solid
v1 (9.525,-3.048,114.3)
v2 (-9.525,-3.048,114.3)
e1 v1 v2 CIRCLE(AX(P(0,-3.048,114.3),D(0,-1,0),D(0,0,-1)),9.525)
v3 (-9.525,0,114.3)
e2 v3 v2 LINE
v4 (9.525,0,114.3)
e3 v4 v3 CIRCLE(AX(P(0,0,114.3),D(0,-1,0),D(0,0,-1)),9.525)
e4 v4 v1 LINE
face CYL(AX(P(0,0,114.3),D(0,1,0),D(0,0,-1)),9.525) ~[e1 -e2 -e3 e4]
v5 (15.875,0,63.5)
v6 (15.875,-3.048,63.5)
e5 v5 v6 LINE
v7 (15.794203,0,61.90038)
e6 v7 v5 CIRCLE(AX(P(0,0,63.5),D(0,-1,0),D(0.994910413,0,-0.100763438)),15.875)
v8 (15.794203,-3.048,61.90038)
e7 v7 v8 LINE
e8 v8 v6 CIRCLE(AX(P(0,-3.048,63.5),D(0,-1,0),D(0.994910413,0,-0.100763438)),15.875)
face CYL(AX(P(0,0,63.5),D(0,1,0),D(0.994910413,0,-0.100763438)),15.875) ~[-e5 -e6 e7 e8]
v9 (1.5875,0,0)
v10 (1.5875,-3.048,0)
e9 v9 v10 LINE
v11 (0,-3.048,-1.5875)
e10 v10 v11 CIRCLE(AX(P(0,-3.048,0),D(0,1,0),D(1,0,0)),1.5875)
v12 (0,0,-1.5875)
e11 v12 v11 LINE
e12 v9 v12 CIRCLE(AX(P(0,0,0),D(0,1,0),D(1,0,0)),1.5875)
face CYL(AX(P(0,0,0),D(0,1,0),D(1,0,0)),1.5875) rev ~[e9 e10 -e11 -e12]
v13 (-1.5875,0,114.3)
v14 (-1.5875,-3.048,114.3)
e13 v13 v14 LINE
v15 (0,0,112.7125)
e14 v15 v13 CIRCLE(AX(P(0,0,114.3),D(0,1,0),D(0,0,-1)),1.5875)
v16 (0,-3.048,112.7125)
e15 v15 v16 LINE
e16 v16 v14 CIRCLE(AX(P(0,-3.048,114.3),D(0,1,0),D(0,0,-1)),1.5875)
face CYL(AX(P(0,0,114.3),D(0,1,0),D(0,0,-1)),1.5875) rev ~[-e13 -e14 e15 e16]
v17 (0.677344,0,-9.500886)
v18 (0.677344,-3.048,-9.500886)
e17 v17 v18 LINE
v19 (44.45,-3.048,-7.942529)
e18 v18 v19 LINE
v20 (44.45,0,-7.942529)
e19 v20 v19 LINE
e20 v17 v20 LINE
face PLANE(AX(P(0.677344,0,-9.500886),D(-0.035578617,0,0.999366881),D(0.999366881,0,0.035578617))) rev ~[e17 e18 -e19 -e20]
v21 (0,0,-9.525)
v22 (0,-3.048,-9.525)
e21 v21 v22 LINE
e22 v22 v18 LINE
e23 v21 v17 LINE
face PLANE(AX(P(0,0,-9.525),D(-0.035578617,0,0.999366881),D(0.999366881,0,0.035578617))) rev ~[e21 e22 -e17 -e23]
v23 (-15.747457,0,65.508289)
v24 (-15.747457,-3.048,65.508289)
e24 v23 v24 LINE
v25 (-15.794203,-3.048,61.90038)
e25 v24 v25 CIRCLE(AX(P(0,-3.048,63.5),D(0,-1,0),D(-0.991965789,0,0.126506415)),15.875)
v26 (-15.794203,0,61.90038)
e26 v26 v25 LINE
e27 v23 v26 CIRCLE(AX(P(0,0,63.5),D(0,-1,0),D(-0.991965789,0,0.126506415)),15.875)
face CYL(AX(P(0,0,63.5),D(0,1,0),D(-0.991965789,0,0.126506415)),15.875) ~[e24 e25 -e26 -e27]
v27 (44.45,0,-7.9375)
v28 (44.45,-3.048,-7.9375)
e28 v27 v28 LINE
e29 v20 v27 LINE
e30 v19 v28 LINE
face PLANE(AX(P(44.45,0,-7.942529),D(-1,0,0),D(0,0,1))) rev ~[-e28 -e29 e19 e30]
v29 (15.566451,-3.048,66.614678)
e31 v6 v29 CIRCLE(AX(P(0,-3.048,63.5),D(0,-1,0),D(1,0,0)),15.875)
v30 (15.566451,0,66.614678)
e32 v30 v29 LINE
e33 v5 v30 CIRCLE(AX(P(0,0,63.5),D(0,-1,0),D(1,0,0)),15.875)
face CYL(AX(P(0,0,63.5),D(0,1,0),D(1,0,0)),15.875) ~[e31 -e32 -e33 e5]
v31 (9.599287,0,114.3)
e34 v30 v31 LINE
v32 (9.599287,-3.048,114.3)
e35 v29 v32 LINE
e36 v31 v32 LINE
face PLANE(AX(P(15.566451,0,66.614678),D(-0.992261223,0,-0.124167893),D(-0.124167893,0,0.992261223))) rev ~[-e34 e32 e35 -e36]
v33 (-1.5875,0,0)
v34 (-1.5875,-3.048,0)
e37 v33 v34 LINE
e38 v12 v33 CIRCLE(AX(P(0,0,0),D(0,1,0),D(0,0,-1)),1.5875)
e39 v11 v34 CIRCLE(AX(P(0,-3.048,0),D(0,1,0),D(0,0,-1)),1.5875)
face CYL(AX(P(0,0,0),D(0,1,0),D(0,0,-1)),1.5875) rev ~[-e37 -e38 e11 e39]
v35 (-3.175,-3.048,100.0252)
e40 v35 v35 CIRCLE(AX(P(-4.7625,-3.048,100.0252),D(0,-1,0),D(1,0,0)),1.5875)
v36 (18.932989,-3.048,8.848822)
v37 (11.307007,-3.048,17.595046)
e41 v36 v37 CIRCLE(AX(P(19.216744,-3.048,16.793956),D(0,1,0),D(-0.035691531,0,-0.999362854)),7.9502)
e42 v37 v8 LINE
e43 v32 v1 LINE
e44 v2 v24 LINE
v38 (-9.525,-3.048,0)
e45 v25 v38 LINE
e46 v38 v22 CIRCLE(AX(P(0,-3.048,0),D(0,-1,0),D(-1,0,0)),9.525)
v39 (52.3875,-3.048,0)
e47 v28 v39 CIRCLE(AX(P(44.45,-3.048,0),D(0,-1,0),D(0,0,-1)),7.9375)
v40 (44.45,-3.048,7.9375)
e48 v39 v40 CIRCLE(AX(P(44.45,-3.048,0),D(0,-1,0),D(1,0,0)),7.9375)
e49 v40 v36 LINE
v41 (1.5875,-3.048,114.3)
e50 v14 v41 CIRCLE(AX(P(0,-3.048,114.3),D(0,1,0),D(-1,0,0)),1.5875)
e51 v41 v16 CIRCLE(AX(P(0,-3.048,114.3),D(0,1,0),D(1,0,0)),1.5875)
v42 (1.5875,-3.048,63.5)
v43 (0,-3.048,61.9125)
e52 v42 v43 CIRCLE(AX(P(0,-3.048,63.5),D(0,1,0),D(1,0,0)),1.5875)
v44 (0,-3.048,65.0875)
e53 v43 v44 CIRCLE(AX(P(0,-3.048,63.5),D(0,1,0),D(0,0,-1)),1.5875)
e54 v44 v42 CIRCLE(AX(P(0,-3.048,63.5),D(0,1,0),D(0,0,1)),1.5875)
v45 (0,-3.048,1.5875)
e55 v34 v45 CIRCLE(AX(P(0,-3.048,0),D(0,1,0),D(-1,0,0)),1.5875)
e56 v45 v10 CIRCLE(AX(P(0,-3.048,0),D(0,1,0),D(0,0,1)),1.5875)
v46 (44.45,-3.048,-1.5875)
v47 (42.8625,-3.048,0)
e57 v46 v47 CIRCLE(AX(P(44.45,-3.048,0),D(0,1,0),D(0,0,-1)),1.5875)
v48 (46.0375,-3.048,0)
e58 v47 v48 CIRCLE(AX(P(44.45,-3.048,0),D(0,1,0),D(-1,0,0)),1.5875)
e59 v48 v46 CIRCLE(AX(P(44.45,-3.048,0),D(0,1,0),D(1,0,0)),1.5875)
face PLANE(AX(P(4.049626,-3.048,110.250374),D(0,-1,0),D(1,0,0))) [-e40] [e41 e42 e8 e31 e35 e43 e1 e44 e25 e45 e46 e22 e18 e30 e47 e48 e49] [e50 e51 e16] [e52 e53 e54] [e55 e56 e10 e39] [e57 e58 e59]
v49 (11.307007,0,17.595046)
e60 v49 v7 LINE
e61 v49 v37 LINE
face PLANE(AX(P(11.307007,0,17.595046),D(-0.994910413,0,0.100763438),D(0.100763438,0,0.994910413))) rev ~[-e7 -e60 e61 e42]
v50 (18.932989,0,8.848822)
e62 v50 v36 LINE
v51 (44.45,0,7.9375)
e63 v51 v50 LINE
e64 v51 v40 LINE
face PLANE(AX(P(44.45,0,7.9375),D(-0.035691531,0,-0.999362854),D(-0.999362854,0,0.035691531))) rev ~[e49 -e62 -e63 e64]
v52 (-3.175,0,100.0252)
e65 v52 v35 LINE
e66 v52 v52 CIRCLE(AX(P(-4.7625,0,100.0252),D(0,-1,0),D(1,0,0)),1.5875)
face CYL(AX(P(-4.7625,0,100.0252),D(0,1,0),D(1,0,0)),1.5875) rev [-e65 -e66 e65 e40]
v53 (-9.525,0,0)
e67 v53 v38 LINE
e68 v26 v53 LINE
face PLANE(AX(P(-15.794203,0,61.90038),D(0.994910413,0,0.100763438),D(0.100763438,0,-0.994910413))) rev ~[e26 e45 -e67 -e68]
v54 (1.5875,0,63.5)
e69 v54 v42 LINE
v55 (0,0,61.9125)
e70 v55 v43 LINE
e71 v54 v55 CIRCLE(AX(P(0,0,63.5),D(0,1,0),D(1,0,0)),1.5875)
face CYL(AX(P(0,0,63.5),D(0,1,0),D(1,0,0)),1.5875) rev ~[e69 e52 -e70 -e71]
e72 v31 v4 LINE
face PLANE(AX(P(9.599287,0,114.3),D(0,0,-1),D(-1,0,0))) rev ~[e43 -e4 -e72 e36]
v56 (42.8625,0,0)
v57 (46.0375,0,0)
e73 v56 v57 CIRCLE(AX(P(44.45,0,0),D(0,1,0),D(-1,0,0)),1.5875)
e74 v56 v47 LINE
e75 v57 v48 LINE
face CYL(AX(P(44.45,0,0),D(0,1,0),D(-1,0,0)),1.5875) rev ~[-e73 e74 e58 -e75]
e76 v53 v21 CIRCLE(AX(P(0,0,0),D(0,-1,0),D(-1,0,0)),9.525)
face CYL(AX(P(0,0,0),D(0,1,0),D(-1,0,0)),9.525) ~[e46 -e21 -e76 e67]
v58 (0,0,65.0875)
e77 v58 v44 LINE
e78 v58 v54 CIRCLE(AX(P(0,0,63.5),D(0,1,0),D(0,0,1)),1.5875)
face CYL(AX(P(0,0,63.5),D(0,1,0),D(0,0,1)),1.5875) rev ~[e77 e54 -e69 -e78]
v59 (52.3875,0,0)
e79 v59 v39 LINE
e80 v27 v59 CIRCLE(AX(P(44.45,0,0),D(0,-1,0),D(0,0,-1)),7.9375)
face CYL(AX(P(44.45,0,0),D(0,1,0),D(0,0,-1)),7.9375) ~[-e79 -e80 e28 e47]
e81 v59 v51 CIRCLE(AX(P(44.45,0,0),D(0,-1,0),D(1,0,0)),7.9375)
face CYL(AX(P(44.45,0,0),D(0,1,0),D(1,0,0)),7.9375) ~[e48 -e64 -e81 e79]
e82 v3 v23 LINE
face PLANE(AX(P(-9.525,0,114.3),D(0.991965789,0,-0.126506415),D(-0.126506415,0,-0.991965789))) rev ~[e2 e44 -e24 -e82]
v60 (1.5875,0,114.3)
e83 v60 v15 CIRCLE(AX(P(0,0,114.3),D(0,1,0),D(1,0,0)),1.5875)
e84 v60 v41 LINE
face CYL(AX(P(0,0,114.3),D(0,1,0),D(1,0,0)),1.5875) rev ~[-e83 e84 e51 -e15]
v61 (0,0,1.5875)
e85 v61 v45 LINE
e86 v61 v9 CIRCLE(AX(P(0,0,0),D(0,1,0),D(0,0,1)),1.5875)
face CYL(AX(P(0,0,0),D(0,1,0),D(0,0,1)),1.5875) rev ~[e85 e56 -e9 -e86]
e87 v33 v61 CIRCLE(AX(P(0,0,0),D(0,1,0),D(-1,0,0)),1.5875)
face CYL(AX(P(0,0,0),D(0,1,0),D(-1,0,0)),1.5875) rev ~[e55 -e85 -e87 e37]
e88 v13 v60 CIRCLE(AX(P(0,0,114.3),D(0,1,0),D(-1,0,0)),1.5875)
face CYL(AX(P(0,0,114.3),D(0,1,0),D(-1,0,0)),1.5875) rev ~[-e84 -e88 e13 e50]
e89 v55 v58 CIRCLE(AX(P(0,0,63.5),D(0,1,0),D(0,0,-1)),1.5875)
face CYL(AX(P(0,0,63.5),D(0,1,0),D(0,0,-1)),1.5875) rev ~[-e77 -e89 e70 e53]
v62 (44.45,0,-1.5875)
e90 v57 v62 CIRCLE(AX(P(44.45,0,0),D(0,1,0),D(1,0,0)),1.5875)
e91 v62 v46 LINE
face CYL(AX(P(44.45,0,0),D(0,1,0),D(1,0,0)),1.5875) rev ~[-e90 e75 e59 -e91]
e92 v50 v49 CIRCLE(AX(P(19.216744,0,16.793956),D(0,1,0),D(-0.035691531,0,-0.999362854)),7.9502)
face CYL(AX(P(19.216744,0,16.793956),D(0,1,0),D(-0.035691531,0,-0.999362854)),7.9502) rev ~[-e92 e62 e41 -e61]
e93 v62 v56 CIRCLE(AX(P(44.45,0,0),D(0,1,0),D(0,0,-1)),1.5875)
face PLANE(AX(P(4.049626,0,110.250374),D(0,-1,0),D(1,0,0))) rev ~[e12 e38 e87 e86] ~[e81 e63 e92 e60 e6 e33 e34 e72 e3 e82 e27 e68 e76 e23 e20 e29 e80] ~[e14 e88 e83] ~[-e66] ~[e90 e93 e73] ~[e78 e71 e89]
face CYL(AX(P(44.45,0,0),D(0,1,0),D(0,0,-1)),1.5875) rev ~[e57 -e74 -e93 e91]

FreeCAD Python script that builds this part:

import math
import FreeCAD as App
import Part
import Sketcher

V = App.Vector
Q = App.Units.Quantity

doc = App.newDocument("Part")
body = doc.addObject("PartDesign::Body", "Body")

sketch1 = doc.addObject("Sketcher::SketchObject", "Sketch")
body.addObject(sketch1)
sketch1.AttachmentSupport = (doc.XZ_Plane, [""])
sketch1.MapMode = "FlatFace"
sketch1.addGeometry(Part.ArcOfCircle(Part.Circle(V(0, 114.3, 0), V(0, 0, 1), 9.525), math.radians(0), math.radians(180)), False)
sketch1.addGeometry(Part.LineSegment(V(-9.525, 114.3, 0), V(-15.747457, 65.508289, 0)), False)
sketch1.addGeometry(Part.ArcOfCircle(Part.Circle(V(0, 63.5, 0), V(0, 0, 1), 15.875), math.radians(172.732242), math.radians(185.783134)), False)
sketch1.addGeometry(Part.LineSegment(V(-15.794203, 61.90038, 0), V(-9.525, 0, 0)), False)
sketch1.addGeometry(Part.ArcOfCircle(Part.Circle(V(0, 0, 0), V(0, 0, 1), 9.525), math.radians(180), math.radians(270)), False)
sketch1.addGeometry(Part.LineSegment(V(0, -9.525, 0), V(0.677344, -9.500886, 0)), False)
sketch1.addGeometry(Part.LineSegment(V(0.677344, -9.500886, 0), V(44.45, -7.942529, 0)), False)
sketch1.addGeometry(Part.LineSegment(V(44.45, -7.942529, 0), V(44.45, -7.9375, 0)), False)
sketch1.addGeometry(Part.ArcOfCircle(Part.Circle(V(44.45, 0, 0), V(0, 0, 1), 7.9375), math.radians(-90), math.radians(0)), False)
sketch1.addGeometry(Part.ArcOfCircle(Part.Circle(V(44.45, 0, 0), V(0, 0, 1), 7.9375), math.radians(0), math.radians(90)), False)
sketch1.addGeometry(Part.LineSegment(V(44.45, 7.9375, 0), V(18.932989, 8.848822, 0)), False)
sketch1.addGeometry(Part.ArcOfCircle(Part.Circle(V(19.216744, 16.793956, 0), V(0, 0, 1), 7.9502), math.radians(174.216866), math.radians(267.954592)), False)
sketch1.addGeometry(Part.LineSegment(V(11.307007, 17.595046, 0), V(15.794203, 61.90038, 0)), False)
sketch1.addGeometry(Part.ArcOfCircle(Part.Circle(V(0, 63.5, 0), V(0, 0, 1), 15.875), math.radians(-5.783134), math.radians(0)), False)
sketch1.addGeometry(Part.ArcOfCircle(Part.Circle(V(0, 63.5, 0), V(0, 0, 1), 15.875), math.radians(0), math.radians(11.314846)), False)
sketch1.addGeometry(Part.LineSegment(V(15.566451, 66.614678, 0), V(9.599287, 114.3, 0)), False)
sketch1.addGeometry(Part.LineSegment(V(9.599287, 114.3, 0), V(9.525, 114.3, 0)), False)
sketch1.addGeometry(Part.ArcOfCircle(Part.Circle(V(44.45, 0, 0), V(0, 0, 1), 1.5875), math.radians(180), math.radians(270)), False)
sketch1.addGeometry(Part.ArcOfCircle(Part.Circle(V(44.45, 0, 0), V(0, 0, 1), 1.5875), math.radians(0), math.radians(180)), False)
sketch1.addGeometry(Part.ArcOfCircle(Part.Circle(V(44.45, 0, 0), V(0, 0, 1), 1.5875), math.radians(-90), math.radians(0)), False)
sketch1.addGeometry(Part.ArcOfCircle(Part.Circle(V(0, 0, 0), V(0, 0, 1), 1.5875), math.radians(180), math.radians(270)), False)
sketch1.addGeometry(Part.ArcOfCircle(Part.Circle(V(0, 0, 0), V(0, 0, 1), 1.5875), math.radians(90), math.radians(180)), False)
sketch1.addGeometry(Part.ArcOfCircle(Part.Circle(V(0, 0, 0), V(0, 0, 1), 1.5875), math.radians(0), math.radians(90)), False)
sketch1.addGeometry(Part.ArcOfCircle(Part.Circle(V(0, 0, 0), V(0, 0, 1), 1.5875), math.radians(-90), math.radians(0)), False)
sketch1.addGeometry(Part.ArcOfCircle(Part.Circle(V(0, 63.5, 0), V(0, 0, 1), 1.5875), math.radians(90), math.radians(270)), False)
sketch1.addGeometry(Part.ArcOfCircle(Part.Circle(V(0, 63.5, 0), V(0, 0, 1), 1.5875), math.radians(0), math.radians(90)), False)
sketch1.addGeometry(Part.ArcOfCircle(Part.Circle(V(0, 63.5, 0), V(0, 0, 1), 1.5875), math.radians(-90), math.radians(0)), False)
sketch1.addGeometry(Part.Circle(V(-4.7625, 100.0252, 0), V(0, 0, 1), 1.5875), False)
sketch1.addGeometry(Part.ArcOfCircle(Part.Circle(V(0, 114.3, 0), V(0, 0, 1), 1.5875), math.radians(-90), math.radians(0)), False)
sketch1.addGeometry(Part.ArcOfCircle(Part.Circle(V(0, 114.3, 0), V(0, 0, 1), 1.5875), math.radians(180), math.radians(270)), False)
sketch1.addGeometry(Part.ArcOfCircle(Part.Circle(V(0, 114.3, 0), V(0, 0, 1), 1.5875), math.radians(0), math.radians(180)), False)
sketch1.addConstraint(Sketcher.Constraint("Coincident", 0, 2, 1, 1))
sketch1.addConstraint(Sketcher.Constraint("Tangent", 1, 2, 2, 1))
sketch1.addConstraint(Sketcher.Constraint("Tangent", 2, 2, 3, 1))
sketch1.addConstraint(Sketcher.Constraint("Coincident", 3, 2, 4, 1))
sketch1.addConstraint(Sketcher.Constraint("Coincident", 4, 2, 5, 1))
sketch1.addConstraint(Sketcher.Constraint("Coincident", 5, 2, 6, 1))
sketch1.addConstraint(Sketcher.Constraint("Coincident", 6, 2, 7, 1))
sketch1.addConstraint(Sketcher.Constraint("Coincident", 7, 2, 8, 1))
sketch1.addConstraint(Sketcher.Constraint("Tangent", 8, 2, 9, 1))
sketch1.addConstraint(Sketcher.Constraint("Coincident", 9, 2, 10, 1))
sketch1.addConstraint(Sketcher.Constraint("Tangent", 10, 2, 11, 2))
sketch1.addConstraint(Sketcher.Constraint("Tangent", 11, 1, 12, 1))
sketch1.addConstraint(Sketcher.Constraint("Tangent", 12, 2, 13, 1))
sketch1.addConstraint(Sketcher.Constraint("Tangent", 13, 2, 14, 1))
sketch1.addConstraint(Sketcher.Constraint("Coincident", 14, 2, 15, 1))
sketch1.addConstraint(Sketcher.Constraint("Coincident", 15, 2, 16, 1))
sketch1.addConstraint(Sketcher.Constraint("Coincident", 16, 2, 0, 1))
sketch1.addConstraint(Sketcher.Constraint("Tangent", 17, 1, 18, 2))
sketch1.addConstraint(Sketcher.Constraint("Tangent", 18, 1, 19, 2))
sketch1.addConstraint(Sketcher.Constraint("Tangent", 19, 1, 17, 2))
sketch1.addConstraint(Sketcher.Constraint("Tangent", 20, 1, 21, 2))
sketch1.addConstraint(Sketcher.Constraint("Tangent", 21, 1, 22, 2))
sketch1.addConstraint(Sketcher.Constraint("Tangent", 22, 1, 23, 2))
sketch1.addConstraint(Sketcher.Constraint("Tangent", 23, 1, 20, 2))
sketch1.addConstraint(Sketcher.Constraint("Tangent", 24, 1, 25, 2))
sketch1.addConstraint(Sketcher.Constraint("Tangent", 25, 1, 26, 2))
sketch1.addConstraint(Sketcher.Constraint("Tangent", 26, 1, 24, 2))
sketch1.addConstraint(Sketcher.Constraint("Tangent", 28, 1, 29, 2))
sketch1.addConstraint(Sketcher.Constraint("Tangent", 29, 1, 30, 2))
sketch1.addConstraint(Sketcher.Constraint("Tangent", 30, 1, 28, 2))
sketch1.addConstraint(Sketcher.Constraint("Vertical", 7))
sketch1.addConstraint(Sketcher.Constraint("Horizontal", 16))
sketch1.addConstraint(Sketcher.Constraint("Coincident", 4, 3, -1, 1))
sketch1.addConstraint(Sketcher.Constraint("Coincident", 20, 3, -1, 1))
sketch1.addConstraint(Sketcher.Constraint("Coincident", 13, 3, 2, 3))
sketch1.addConstraint(Sketcher.Constraint("Coincident", 17, 3, 8, 3))
sketch1.addConstraint(Sketcher.Constraint("Coincident", 24, 3, 2, 3))
sketch1.addConstraint(Sketcher.Constraint("Coincident", 28, 3, 0, 3))
sketch1.addConstraint(Sketcher.Constraint("Equal", 0, 4))
sketch1.addConstraint(Sketcher.Constraint("Equal", 8, 9))
sketch1.addConstraint(Sketcher.Constraint("Equal", 2, 13))
sketch1.addConstraint(Sketcher.Constraint("Equal", 13, 14))
sketch1.addConstraint(Sketcher.Constraint("Equal", 19, 20))
sketch1.addConstraint(Sketcher.Constraint("Equal", 20, 21))
sketch1.addConstraint(Sketcher.Constraint("Equal", 23, 24))
sketch1.addConstraint(Sketcher.Constraint("Equal", 26, 27))
sketch1.addConstraint(Sketcher.Constraint("Equal", 27, 28))
sketch1.addConstraint(Sketcher.Constraint("Symmetric", 2, 2, 12, 2, -2))
sketch1.addConstraint(Sketcher.Constraint("Symmetric", 0, 2, 16, 2, -2))
sketch1.addConstraint(Sketcher.Constraint("Symmetric", 7, 2, 9, 2, -1))
sketch1.addConstraint(Sketcher.Constraint("PointOnObject", 3, 2, -1))
sketch1.addConstraint(Sketcher.Constraint("PointOnObject", 4, 2, -2))
sketch1.addConstraint(Sketcher.Constraint("PointOnObject", 8, 2, -1))
sketch1.addConstraint(Sketcher.Constraint("PointOnObject", 17, 1, -1))
sketch1.addConstraint(Sketcher.Constraint("PointOnObject", 18, 1, -1))
sketch1.addConstraint(Sketcher.Constraint("PointOnObject", 20, 1, -1))
sketch1.addConstraint(Sketcher.Constraint("PointOnObject", 21, 1, -2))
sketch1.addConstraint(Sketcher.Constraint("PointOnObject", 22, 1, -1))
sketch1.addConstraint(Sketcher.Constraint("PointOnObject", 23, 1, -2))
sketch1.addConstraint(Sketcher.Constraint("PointOnObject", 24, 1, -2))
sketch1.addConstraint(Sketcher.Constraint("PointOnObject", 26, 1, -2))
sketch1.addConstraint(Sketcher.Constraint("PointOnObject", 28, 1, -2))
sketch1.addConstraint(Sketcher.Constraint("Parallel", 5, 6))
sketch1.addConstraint(Sketcher.Constraint("Horizontal", 30, 3, 0, 2))
sketch1.addConstraint(Sketcher.Constraint("Horizontal", 26, 3, 13, 2))
sketch1.addConstraint(Sketcher.Constraint("Horizontal", 13, 2, 25, 1))
sketch1.addConstraint(Sketcher.Constraint("Horizontal", 16, 2, 29, 1))
sketch1.addConstraint(Sketcher.Constraint("Horizontal", 29, 1, 30, 1))
sketch1.addConstraint(Sketcher.Constraint("Vertical", 19, 3, 6, 2))
sketch1.addConstraint(Sketcher.Constraint("Vertical", 9, 2, 19, 1))
sketch1.addConstraint(Sketcher.Constraint("Diameter", 27, Q("0.125 in")))
sketch1.addConstraint(Sketcher.Constraint("Radius", 0, Q("0.375 in")))
sketch1.addConstraint(Sketcher.Constraint("Radius", 2, Q("0.625 in")))
sketch1.addConstraint(Sketcher.Constraint("Radius", 8, Q("0.3125 in")))
sketch1.addConstraint(Sketcher.Constraint("Radius", 11, Q("0.313 in")))
sketch1.addConstraint(Sketcher.Constraint("DistanceY", 2, 3, 0, 3, Q("2 in")))
sketch1.addConstraint(Sketcher.Constraint("DistanceY", -1, 1, 0, 3, Q("4.5 in")))
sketch1.addConstraint(Sketcher.Constraint("DistanceX", -1, 1, 8, 3, Q("1.75 in")))
sketch1.addConstraint(Sketcher.Constraint("DistanceX", 27, 3, -1, 1, Q("0.1875 in")))
sketch1.addConstraint(Sketcher.Constraint("DistanceY", -1, 1, 27, 3, Q("3.938 in")))
sketch1.addConstraint(Sketcher.Constraint("DistanceY", 7, 1, 7, 2, Q("0.005029 mm")))
sketch1.addConstraint(Sketcher.Constraint("DistanceY", 12, 2, 14, 2, Q("4.714298 mm")))
sketch1.addConstraint(Sketcher.Constraint("Distance", 10, Q("25.533279 mm")))
sketch1.addConstraint(Sketcher.Constraint("DistanceX", 16, 2, 16, 1, Q("0.074287 mm")))
sketch1.addConstraint(Sketcher.Constraint("Distance", 5, Q("0.677773 mm")))
pad1 = doc.addObject("PartDesign::Pad", "Pad")
body.addObject(pad1)
pad1.Profile = sketch1
pad1.Length = Q("0.12 in")

doc.recompute()
